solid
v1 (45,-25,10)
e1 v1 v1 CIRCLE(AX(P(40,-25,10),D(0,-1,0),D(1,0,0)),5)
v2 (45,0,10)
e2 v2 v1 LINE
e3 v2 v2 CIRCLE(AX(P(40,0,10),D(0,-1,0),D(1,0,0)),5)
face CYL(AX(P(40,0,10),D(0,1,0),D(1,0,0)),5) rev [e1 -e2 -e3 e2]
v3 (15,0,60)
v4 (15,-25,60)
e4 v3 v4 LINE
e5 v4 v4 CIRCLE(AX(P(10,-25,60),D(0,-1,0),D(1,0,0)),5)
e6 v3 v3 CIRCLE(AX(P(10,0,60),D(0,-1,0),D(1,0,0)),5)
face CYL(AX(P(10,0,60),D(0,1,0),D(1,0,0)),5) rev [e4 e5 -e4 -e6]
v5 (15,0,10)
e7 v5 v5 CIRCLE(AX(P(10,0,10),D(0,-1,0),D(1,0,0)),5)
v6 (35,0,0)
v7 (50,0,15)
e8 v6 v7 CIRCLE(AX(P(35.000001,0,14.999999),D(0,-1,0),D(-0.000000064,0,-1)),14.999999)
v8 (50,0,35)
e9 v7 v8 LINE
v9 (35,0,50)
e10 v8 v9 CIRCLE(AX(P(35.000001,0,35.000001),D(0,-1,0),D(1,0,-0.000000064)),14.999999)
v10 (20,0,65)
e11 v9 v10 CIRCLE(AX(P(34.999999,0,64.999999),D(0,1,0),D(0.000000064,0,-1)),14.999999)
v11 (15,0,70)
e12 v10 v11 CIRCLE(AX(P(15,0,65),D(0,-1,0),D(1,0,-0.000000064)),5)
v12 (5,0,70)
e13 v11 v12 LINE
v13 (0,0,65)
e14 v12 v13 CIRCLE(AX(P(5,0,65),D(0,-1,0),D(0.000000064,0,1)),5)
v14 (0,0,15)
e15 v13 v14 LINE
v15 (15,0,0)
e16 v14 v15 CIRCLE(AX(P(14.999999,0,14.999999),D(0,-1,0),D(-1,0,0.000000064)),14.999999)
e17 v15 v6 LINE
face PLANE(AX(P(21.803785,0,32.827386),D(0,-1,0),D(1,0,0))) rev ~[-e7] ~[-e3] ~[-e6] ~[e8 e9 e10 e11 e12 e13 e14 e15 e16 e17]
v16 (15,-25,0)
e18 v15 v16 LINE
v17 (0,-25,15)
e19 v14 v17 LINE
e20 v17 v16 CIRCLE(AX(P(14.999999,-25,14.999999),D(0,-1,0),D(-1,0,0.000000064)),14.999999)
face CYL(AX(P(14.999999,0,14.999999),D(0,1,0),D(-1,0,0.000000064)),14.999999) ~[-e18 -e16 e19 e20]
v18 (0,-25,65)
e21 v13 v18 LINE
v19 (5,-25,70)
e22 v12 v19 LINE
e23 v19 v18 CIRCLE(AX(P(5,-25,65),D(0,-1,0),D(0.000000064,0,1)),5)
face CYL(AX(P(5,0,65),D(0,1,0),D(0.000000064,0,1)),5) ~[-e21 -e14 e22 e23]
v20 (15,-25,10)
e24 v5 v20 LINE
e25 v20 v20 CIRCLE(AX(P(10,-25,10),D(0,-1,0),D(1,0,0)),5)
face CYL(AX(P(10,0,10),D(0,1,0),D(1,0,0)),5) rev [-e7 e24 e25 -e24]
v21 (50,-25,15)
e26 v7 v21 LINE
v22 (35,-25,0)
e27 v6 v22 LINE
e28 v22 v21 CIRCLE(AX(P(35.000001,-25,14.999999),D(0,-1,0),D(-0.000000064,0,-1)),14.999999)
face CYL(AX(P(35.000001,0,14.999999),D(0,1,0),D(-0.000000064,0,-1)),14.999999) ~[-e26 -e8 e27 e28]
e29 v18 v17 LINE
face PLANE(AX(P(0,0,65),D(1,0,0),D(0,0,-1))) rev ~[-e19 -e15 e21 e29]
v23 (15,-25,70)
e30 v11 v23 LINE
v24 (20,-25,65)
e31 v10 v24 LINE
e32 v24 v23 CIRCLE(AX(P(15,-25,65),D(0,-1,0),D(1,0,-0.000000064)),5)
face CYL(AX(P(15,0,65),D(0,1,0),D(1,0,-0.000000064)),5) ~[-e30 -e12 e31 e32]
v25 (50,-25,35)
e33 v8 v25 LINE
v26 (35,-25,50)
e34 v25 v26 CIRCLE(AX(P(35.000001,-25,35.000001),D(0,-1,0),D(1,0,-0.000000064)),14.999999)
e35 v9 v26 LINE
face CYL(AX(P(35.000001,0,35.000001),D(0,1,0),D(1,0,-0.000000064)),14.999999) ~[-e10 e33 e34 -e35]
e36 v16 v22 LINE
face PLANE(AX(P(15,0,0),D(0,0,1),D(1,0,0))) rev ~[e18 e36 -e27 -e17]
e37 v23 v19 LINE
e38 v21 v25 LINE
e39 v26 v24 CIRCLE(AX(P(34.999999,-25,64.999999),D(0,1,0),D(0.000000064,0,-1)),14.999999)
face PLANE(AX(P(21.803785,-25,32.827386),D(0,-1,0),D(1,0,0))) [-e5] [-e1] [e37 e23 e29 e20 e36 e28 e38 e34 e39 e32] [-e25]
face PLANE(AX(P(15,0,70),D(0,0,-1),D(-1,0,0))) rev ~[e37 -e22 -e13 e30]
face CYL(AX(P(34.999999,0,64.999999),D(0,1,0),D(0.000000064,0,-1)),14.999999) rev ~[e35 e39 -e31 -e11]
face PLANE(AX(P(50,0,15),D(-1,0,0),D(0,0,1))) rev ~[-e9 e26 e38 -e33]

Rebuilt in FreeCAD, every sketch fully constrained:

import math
import FreeCAD as App
import Part
import Sketcher
Q = App.Units.Quantity

doc = App.newDocument("Part")
params = doc.addObject("Spreadsheet::Sheet", "Params")
for row, (alias, value) in enumerate([
    ("sketch1_diameter", "10 mm"),
    ("sketch1_radius", "14.999999 mm"),
    ("pad1_length", "25 mm"),
], start=1):
    params.set(f"A{row}", alias)
    params.set(f"B{row}", "=" + value)
    params.setAlias(f"B{row}", alias)

body = doc.addObject("PartDesign::Body", "Body")

sketch1 = body.newObject("Sketcher::SketchObject", "Sketch")
sketch1.AttachmentSupport = (doc.getObject("XZ_Plane"), [""])
sketch1.MapMode = "FlatFace"
sketch1.addGeometry([
    Part.ArcOfCircle(Part.Circle(App.Vector(15, 15, 0), App.Vector(0, 0, 1), 15), math.radians(180), math.radians(270)),
    Part.LineSegment(App.Vector(15, 0, 0), App.Vector(35, 0, 0)),
    Part.ArcOfCircle(Part.Circle(App.Vector(35, 15, 0), App.Vector(0, 0, 1), 15), math.radians(-90), math.radians(0)),
    Part.LineSegment(App.Vector(50, 15, 0), App.Vector(50, 35, 0)),
    Part.ArcOfCircle(Part.Circle(App.Vector(35, 35, 0), App.Vector(0, 0, 1), 15), math.radians(0), math.radians(90)),
    Part.ArcOfCircle(Part.Circle(App.Vector(35, 65, 0), App.Vector(0, 0, 1), 15), math.radians(180), math.radians(270)),
    Part.ArcOfCircle(Part.Circle(App.Vector(15, 65, 0), App.Vector(0, 0, 1), 5), math.radians(0), math.radians(90)),
    Part.LineSegment(App.Vector(15, 70, 0), App.Vector(5, 70, 0)),
    Part.ArcOfCircle(Part.Circle(App.Vector(5, 65, 0), App.Vector(0, 0, 1), 5), math.radians(90), math.radians(180)),
    Part.LineSegment(App.Vector(0, 65, 0), App.Vector(0, 15, 0)),
    Part.Circle(App.Vector(10, 10, 0), App.Vector(0, 0, 1), 5),
    Part.Circle(App.Vector(40, 10, 0), App.Vector(0, 0, 1), 5),
    Part.Circle(App.Vector(10, 60, 0), App.Vector(0, 0, 1), 5),
], False)
sketch1.addConstraint([
    Sketcher.Constraint("Tangent", 0, 2, 1, 1),
    Sketcher.Constraint("Tangent", 1, 2, 2, 1),
    Sketcher.Constraint("Tangent", 2, 2, 3, 1),
    Sketcher.Constraint("Tangent", 3, 2, 4, 1),
    Sketcher.Constraint("Tangent", 4, 2, 5, 2),
    Sketcher.Constraint("Tangent", 5, 1, 6, 1),
    Sketcher.Constraint("Tangent", 6, 2, 7, 1),
    Sketcher.Constraint("Tangent", 7, 2, 8, 1),
    Sketcher.Constraint("Tangent", 8, 2, 9, 1),
    Sketcher.Constraint("Tangent", 9, 2, 0, 1),
    Sketcher.Constraint("Horizontal", 1),
    Sketcher.Constraint("Vertical", 3),
    Sketcher.Constraint("Horizontal", 7),
    Sketcher.Constraint("Vertical", 9),
    Sketcher.Constraint("Equal", 0, 2),
    Sketcher.Constraint("Equal", 2, 4),
    Sketcher.Constraint("Equal", 4, 5),
    Sketcher.Constraint("Equal", 6, 8),
    Sketcher.Constraint("Equal", 8, 10),
    Sketcher.Constraint("Equal", 10, 11),
    Sketcher.Constraint("Equal", 11, 12),
    Sketcher.Constraint("PointOnObject", 0, 2, -1),
    Sketcher.Constraint("PointOnObject", 8, 2, -2),
    Sketcher.Constraint("Horizontal", 5, 3, 6, 3),
    Sketcher.Constraint("Horizontal", 10, 3, 11, 3),
    Sketcher.Constraint("Vertical", 4, 3, 5, 3),
    Sketcher.Constraint("Vertical", 0, 3, 6, 3),
    Sketcher.Constraint("Vertical", 10, 3, 12, 3),
    Sketcher.Constraint("Equal", 1, 3),
    Sketcher.Constraint("Diameter", 10, Q("10 mm")),
    Sketcher.Constraint("Radius", 0, Q("14.999999 mm")),
    Sketcher.Constraint("DistanceX", -1, 1, 10, 3, Q("10 mm")),
    Sketcher.Constraint("DistanceY", -1, 1, 10, 3, Q("10 mm")),
    Sketcher.Constraint("DistanceX", -1, 1, 11, 3, Q("40 mm")),
    Sketcher.Constraint("DistanceY", -1, 1, 12, 3, Q("60 mm")),
])
sketch1.setExpression("Constraints[29]", "Params.sketch1_diameter")
sketch1.setExpression("Constraints[30]", "Params.sketch1_radius")
pad1 = body.newObject("PartDesign::Pad", "Pad")
pad1.Profile = sketch1
pad1.setExpression("Length", "Params.pad1_length")

doc.recompute()
